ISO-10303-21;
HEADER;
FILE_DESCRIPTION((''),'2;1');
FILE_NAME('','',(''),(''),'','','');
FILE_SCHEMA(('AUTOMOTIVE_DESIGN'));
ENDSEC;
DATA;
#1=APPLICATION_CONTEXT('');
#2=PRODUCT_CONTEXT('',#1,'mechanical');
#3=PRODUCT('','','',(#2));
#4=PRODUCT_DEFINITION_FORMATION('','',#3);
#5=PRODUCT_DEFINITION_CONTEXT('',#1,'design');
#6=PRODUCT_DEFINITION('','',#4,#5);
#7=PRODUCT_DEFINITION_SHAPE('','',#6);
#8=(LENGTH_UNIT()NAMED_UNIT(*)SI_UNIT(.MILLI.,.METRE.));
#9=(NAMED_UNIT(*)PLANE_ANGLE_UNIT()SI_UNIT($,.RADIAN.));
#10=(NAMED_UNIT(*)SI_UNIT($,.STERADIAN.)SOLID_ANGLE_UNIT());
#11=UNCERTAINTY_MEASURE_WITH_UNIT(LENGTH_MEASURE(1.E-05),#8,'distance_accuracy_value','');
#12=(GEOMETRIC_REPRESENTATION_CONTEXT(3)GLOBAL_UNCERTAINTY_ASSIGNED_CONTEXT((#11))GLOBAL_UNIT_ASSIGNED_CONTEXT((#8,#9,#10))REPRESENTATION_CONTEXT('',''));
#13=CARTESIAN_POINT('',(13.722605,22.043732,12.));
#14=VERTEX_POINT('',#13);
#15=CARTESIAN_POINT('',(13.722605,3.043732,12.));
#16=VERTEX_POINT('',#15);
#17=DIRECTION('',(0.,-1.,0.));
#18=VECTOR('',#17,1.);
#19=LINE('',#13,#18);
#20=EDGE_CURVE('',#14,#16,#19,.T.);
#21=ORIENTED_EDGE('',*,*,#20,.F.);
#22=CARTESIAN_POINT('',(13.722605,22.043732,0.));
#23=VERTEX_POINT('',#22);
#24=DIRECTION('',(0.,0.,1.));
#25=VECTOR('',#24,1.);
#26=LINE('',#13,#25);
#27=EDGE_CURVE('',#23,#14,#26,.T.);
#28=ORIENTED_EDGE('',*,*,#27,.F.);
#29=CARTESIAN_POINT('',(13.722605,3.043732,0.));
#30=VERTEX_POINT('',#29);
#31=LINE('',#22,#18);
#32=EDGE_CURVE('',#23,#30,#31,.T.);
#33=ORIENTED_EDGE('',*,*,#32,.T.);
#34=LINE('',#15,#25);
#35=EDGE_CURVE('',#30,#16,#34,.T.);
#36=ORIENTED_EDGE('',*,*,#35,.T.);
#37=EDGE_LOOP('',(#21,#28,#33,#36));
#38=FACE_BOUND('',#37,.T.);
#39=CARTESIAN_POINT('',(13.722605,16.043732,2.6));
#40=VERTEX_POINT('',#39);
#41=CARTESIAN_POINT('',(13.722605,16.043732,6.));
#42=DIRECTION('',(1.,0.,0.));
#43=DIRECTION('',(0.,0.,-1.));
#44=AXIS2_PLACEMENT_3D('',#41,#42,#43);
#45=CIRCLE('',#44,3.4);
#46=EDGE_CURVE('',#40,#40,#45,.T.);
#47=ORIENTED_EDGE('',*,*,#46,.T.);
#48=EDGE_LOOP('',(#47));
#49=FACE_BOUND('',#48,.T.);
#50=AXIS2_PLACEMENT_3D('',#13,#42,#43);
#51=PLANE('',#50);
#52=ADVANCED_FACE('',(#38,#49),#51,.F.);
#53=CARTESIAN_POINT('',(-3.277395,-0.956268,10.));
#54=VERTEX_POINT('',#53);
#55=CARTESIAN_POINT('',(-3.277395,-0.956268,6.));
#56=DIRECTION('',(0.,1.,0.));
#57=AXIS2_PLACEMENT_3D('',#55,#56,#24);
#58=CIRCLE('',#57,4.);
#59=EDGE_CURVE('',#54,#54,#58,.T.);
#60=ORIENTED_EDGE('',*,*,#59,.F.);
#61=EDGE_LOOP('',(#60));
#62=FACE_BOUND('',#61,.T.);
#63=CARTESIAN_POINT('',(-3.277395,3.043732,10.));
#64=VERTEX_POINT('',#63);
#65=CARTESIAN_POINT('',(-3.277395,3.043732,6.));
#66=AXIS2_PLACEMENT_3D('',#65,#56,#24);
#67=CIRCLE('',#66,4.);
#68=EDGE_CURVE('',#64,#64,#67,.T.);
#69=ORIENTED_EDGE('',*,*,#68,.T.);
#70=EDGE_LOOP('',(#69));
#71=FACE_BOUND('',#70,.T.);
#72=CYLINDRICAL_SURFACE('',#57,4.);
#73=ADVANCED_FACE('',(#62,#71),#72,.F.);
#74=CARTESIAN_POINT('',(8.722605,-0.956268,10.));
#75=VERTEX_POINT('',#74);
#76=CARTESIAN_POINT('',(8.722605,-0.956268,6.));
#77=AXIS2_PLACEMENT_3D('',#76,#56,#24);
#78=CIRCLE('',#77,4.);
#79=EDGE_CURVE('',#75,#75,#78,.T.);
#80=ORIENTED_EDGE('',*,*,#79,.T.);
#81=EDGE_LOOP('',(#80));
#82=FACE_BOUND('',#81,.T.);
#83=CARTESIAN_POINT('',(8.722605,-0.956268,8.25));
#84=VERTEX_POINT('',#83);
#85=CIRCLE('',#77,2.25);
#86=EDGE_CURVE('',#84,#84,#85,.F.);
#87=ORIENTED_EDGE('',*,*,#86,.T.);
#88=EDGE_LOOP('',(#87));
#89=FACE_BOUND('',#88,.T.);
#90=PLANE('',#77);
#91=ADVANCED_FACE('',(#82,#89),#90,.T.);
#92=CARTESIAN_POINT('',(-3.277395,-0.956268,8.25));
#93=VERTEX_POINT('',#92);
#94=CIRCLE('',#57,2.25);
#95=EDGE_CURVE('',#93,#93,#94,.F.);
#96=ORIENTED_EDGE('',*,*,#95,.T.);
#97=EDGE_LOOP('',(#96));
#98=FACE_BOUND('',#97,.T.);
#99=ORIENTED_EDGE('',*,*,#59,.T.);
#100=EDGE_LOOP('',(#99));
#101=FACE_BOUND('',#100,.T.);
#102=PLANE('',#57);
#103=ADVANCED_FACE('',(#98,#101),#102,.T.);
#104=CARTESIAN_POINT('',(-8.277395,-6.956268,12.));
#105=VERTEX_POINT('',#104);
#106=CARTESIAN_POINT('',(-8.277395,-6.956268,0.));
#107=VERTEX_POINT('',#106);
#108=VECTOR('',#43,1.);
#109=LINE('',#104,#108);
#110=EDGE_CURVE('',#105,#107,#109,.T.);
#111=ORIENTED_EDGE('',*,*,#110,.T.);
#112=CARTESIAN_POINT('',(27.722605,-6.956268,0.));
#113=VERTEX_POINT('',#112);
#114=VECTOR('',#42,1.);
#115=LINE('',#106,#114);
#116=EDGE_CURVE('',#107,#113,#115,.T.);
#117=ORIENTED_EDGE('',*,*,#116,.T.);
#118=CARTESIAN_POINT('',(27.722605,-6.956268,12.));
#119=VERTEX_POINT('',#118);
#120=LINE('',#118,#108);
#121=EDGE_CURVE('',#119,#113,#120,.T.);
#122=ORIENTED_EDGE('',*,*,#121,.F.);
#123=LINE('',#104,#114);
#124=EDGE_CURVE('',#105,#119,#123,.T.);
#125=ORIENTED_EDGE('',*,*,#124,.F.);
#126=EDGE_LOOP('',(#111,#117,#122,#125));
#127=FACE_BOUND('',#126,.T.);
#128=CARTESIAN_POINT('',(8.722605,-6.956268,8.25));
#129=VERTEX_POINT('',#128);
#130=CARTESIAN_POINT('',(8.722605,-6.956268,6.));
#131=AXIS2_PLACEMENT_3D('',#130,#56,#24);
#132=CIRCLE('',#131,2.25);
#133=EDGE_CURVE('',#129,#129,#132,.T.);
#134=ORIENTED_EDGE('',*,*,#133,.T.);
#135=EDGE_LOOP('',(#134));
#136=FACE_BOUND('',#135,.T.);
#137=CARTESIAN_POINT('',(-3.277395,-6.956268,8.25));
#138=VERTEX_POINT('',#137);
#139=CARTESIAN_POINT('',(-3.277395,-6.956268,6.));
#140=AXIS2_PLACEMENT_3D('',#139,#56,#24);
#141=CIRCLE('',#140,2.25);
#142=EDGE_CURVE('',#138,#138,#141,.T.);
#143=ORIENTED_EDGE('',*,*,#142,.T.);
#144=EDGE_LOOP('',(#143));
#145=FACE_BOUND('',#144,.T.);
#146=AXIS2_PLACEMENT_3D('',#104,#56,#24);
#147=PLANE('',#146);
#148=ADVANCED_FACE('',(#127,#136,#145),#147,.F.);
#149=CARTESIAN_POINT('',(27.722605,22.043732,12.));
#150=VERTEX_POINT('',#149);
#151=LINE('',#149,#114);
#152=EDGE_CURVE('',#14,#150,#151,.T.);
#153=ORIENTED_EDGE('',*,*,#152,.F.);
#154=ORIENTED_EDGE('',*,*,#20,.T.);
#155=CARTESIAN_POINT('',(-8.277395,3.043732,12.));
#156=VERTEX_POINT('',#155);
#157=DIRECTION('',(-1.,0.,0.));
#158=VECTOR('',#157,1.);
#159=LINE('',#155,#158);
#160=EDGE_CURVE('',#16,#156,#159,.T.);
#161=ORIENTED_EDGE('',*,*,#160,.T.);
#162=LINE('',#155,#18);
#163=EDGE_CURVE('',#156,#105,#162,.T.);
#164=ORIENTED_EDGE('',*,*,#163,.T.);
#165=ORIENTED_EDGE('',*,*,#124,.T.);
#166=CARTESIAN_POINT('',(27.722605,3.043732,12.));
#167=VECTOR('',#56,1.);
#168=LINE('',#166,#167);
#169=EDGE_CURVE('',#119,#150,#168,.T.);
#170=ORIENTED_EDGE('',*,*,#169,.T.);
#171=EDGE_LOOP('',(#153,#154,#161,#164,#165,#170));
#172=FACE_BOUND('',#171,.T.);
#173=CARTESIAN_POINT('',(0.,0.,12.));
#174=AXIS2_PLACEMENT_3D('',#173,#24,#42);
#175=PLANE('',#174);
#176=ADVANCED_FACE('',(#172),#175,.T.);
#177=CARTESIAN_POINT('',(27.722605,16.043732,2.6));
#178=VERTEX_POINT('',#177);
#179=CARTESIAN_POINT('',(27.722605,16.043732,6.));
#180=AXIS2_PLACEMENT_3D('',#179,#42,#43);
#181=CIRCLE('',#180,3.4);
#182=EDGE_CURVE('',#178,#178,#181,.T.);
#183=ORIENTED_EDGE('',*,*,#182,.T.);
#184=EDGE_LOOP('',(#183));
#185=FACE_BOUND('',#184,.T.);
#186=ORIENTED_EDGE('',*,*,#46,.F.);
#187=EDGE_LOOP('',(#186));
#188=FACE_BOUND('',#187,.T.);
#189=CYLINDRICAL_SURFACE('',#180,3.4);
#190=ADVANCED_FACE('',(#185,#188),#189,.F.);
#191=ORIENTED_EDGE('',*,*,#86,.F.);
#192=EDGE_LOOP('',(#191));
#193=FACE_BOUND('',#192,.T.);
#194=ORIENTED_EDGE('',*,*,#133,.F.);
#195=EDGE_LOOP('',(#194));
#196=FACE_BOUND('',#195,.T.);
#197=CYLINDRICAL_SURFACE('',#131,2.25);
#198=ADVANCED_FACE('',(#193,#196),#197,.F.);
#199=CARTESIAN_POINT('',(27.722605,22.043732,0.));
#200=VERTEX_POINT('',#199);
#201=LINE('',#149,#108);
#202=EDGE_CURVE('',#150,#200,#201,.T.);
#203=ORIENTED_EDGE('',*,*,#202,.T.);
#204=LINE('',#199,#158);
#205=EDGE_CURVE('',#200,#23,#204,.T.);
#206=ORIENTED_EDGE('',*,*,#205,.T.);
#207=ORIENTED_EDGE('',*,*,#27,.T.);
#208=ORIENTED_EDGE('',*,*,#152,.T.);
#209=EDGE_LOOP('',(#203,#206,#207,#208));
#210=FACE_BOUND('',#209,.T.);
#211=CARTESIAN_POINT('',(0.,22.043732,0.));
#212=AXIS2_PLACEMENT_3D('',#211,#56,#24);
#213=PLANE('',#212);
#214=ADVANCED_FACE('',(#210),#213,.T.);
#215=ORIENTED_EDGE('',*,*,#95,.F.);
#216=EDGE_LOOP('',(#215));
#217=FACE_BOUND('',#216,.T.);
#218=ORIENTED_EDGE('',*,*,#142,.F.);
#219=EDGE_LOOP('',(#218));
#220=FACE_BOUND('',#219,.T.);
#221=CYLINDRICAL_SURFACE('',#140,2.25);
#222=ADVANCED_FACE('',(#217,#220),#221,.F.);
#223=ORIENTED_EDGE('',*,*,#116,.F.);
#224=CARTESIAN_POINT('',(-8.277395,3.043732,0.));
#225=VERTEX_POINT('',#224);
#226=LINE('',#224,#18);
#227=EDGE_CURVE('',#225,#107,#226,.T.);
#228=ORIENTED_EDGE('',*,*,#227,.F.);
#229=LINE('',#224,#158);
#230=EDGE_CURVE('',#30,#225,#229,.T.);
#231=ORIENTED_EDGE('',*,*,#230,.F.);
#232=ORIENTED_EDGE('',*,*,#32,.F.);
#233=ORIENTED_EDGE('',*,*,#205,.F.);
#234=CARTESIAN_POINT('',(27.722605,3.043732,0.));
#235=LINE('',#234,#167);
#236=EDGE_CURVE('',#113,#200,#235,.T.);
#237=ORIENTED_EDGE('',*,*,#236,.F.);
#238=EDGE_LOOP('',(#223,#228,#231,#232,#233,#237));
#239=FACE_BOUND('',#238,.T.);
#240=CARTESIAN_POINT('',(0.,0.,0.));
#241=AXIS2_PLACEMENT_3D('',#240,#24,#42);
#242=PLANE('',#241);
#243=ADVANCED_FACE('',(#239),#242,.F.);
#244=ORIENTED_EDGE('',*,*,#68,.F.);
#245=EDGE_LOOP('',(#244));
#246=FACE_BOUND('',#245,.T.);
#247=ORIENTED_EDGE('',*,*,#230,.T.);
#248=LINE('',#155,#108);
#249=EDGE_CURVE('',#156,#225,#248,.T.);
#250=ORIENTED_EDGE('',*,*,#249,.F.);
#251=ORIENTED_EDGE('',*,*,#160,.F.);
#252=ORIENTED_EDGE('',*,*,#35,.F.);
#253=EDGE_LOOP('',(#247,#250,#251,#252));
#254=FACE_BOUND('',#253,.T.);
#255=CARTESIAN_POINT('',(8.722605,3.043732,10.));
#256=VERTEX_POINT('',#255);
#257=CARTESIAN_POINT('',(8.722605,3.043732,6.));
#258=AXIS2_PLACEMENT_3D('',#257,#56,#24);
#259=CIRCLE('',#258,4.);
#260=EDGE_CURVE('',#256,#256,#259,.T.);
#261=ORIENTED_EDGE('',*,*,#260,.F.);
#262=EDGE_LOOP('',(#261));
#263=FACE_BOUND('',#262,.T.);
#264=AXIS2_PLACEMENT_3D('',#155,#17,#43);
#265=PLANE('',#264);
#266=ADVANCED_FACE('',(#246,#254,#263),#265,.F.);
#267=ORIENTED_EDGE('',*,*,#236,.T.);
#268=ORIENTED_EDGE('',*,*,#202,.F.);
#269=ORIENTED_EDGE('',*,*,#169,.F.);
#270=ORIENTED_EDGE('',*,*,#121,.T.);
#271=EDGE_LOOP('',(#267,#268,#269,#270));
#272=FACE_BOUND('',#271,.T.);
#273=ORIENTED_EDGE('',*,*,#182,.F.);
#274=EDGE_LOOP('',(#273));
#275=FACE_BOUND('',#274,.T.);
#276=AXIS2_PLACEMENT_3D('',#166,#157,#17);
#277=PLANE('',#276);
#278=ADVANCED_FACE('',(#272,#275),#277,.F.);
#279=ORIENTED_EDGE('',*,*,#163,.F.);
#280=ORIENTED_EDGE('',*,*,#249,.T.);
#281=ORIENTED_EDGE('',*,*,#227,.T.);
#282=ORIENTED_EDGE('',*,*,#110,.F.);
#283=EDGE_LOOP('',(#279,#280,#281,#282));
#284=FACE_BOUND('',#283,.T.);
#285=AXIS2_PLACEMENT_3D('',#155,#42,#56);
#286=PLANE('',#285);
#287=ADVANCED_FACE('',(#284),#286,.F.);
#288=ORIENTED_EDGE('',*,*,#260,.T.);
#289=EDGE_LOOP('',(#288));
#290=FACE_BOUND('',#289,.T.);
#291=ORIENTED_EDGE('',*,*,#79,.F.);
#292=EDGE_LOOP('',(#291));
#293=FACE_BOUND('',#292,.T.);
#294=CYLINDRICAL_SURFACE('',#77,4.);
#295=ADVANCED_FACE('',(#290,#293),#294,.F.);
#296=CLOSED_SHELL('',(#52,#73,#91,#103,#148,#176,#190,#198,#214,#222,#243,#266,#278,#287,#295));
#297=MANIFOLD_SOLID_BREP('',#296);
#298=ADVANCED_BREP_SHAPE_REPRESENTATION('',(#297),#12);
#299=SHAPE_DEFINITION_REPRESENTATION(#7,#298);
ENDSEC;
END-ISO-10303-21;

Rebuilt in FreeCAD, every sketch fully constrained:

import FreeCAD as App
import Part
import Sketcher

V = App.Vector
Q = App.Units.Quantity

doc = App.newDocument("Part")
body = doc.addObject("PartDesign::Body", "Body")

sketch1 = doc.addObject("Sketcher::SketchObject", "Sketch")
body.addObject(sketch1)
sketch1.AttachmentSupport = (doc.XY_Plane, [""])
sketch1.MapMode = "FlatFace"
sketch1.addGeometry(Part.LineSegment(V(-8, 3, 0), V(-8, -7, 0)), False)
sketch1.addGeometry(Part.LineSegment(V(-8, -7, 0), V(28, -7, 0)), False)
sketch1.addGeometry(Part.LineSegment(V(28, -7, 0), V(28, 3, 0)), False)
sketch1.addGeometry(Part.LineSegment(V(28, 3, 0), V(-8, 3, 0)), False)
sketch1.addConstraint(Sketcher.Constraint("Coincident", 0, 2, 1, 1))
sketch1.addConstraint(Sketcher.Constraint("Coincident", 1, 2, 2, 1))
sketch1.addConstraint(Sketcher.Constraint("Coincident", 2, 2, 3, 1))
sketch1.addConstraint(Sketcher.Constraint("Coincident", 3, 2, 0, 1))
sketch1.addConstraint(Sketcher.Constraint("Vertical", 0))
sketch1.addConstraint(Sketcher.Constraint("Horizontal", 1))
sketch1.addConstraint(Sketcher.Constraint("Vertical", 2))
sketch1.addConstraint(Sketcher.Constraint("Horizontal", 3))
sketch1.addConstraint(Sketcher.Constraint("DistanceX", 1, 1, 1, 2, Q("36 mm")))
sketch1.addConstraint(Sketcher.Constraint("DistanceY", 0, 2, 0, 1, Q("10 mm")))
sketch1.addConstraint(Sketcher.Constraint("DistanceY", 0, 2, -1, 1, Q("6.956268 mm")))
sketch1.addConstraint(Sketcher.Constraint("DistanceX", 0, 2, -1, 1, Q("8.277395 mm")))
pad1 = doc.addObject("PartDesign::Pad", "Pad")
body.addObject(pad1)
pad1.Profile = sketch1
pad1.Length = 12

sketch2 = doc.addObject("Sketcher::SketchObject", "Sketch001")
body.addObject(sketch2)
sketch2.AttachmentSupport = (doc.XZ_Plane, [""])
sketch2.MapMode = "FlatFace"
sketch2.AttachmentOffset = App.Placement(V(0, 0, -3.043732), App.Rotation())
sketch2.addGeometry(Part.LineSegment(V(14, 0, 0), V(14, 12, 0)), False)
sketch2.addGeometry(Part.LineSegment(V(14, 12, 0), V(28, 12, 0)), False)
sketch2.addGeometry(Part.LineSegment(V(28, 12, 0), V(28, 0, 0)), False)
sketch2.addGeometry(Part.LineSegment(V(28, 0, 0), V(14, 0, 0)), False)
sketch2.addConstraint(Sketcher.Constraint("Coincident", 0, 2, 1, 1))
sketch2.addConstraint(Sketcher.Constraint("Coincident", 1, 2, 2, 1))
sketch2.addConstraint(Sketcher.Constraint("Coincident", 2, 2, 3, 1))
sketch2.addConstraint(Sketcher.Constraint("Coincident", 3, 2, 0, 1))
sketch2.addConstraint(Sketcher.Constraint("Vertical", 0))
sketch2.addConstraint(Sketcher.Constraint("Horizontal", 1))
sketch2.addConstraint(Sketcher.Constraint("Vertical", 2))
sketch2.addConstraint(Sketcher.Constraint("Horizontal", 3))
sketch2.addConstraint(Sketcher.Constraint("PointOnObject", 2, 2, -1))
sketch2.addConstraint(Sketcher.Constraint("DistanceX", 1, 1, 1, 2, Q("14 mm")))
sketch2.addConstraint(Sketcher.Constraint("DistanceY", 0, 1, 0, 2, Q("12 mm")))
sketch2.addConstraint(Sketcher.Constraint("DistanceX", -1, 1, 0, 2, Q("13.722605 mm")))
pad2 = doc.addObject("PartDesign::Pad", "Pad001")
body.addObject(pad2)
pad2.Profile = sketch2
pad2.Length = 19
pad2.Reversed = True

sketch3 = doc.addObject("Sketcher::SketchObject", "Sketch002")
body.addObject(sketch3)
sketch3.AttachmentSupport = (doc.XZ_Plane, [""])
sketch3.MapMode = "FlatFace"
sketch3.AttachmentOffset = App.Placement(V(0, 0, -3.043732), App.Rotation())
sketch3.addGeometry(Part.Circle(V(-3.3, 6, 0), V(0, 0, 1), 2.2), False)
sketch3.addGeometry(Part.Circle(V(8.7, 6, 0), V(0, 0, 1), 2.2), False)
sketch3.addConstraint(Sketcher.Constraint("Equal", 0, 1))
sketch3.addConstraint(Sketcher.Constraint("Horizontal", 0, 3, 1, 3))
sketch3.addConstraint(Sketcher.Constraint("Diameter", 0, Q("4.5 mm")))
sketch3.addConstraint(Sketcher.Constraint("DistanceY", -1, 1, 0, 3, Q("6 mm")))
sketch3.addConstraint(Sketcher.Constraint("DistanceX", 0, 3, 1, 3, Q("12 mm")))
sketch3.addConstraint(Sketcher.Constraint("DistanceX", 0, 3, -1, 1, Q("3.277395 mm")))
pocket1 = doc.addObject("PartDesign::Pocket", "Pocket")
body.addObject(pocket1)
pocket1.Profile = sketch3
pocket1.Type = "ThroughAll"
pocket1.Reversed = True

sketch4 = doc.addObject("Sketcher::SketchObject", "Sketch003")
body.addObject(sketch4)
sketch4.AttachmentSupport = (doc.XZ_Plane, [""])
sketch4.MapMode = "FlatFace"
sketch4.AttachmentOffset = App.Placement(V(0, 0, -3.043732), App.Rotation())
sketch4.addGeometry(Part.Circle(V(-3.3, 6, 0), V(0, 0, 1), 4), False)
sketch4.addGeometry(Part.Circle(V(8.7, 6, 0), V(0, 0, 1), 4), False)
sketch4.addConstraint(Sketcher.Constraint("Equal", 0, 1))
sketch4.addConstraint(Sketcher.Constraint("Horizontal", 0, 3, 1, 3))
sketch4.addConstraint(Sketcher.Constraint("Diameter", 0, Q("8 mm")))
sketch4.addConstraint(Sketcher.Constraint("DistanceY", -1, 1, 0, 3, Q("6 mm")))
sketch4.addConstraint(Sketcher.Constraint("DistanceX", 0, 3, 1, 3, Q("12 mm")))
sketch4.addConstraint(Sketcher.Constraint("DistanceX", 0, 3, -1, 1, Q("3.277395 mm")))
pocket2 = doc.addObject("PartDesign::Pocket", "Pocket001")
body.addObject(pocket2)
pocket2.Profile = sketch4
pocket2.Length = 4
pocket2.Reversed = True

sketch5 = doc.addObject("Sketcher::SketchObject", "Sketch004")
body.addObject(sketch5)
sketch5.AttachmentSupport = (doc.YZ_Plane, [""])
sketch5.MapMode = "FlatFace"
sketch5.AttachmentOffset = App.Placement(V(0, 0, 27.722605), App.Rotation())
sketch5.addGeometry(Part.Circle(V(16, 6, 0), V(0, 0, 1), 3.4), False)
sketch5.addConstraint(Sketcher.Constraint("Diameter", 0, Q("6.8 mm")))
sketch5.addConstraint(Sketcher.Constraint("DistanceY", -1, 1, 0, 3, Q("6 mm")))
sketch5.addConstraint(Sketcher.Constraint("DistanceX", -1, 1, 0, 3, Q("16.043732 mm")))
doc.recompute()
hole = doc.addObject("PartDesign::Hole", "Hole")
body.addObject(hole)
hole.Profile = sketch5
hole.ThreadType = "None"
hole.Diameter = 6.8
hole.DepthType = "Dimension"
hole.Depth = 19.75
hole.DrillPoint = "Angled"
hole.DrillPointAngle = 118

doc.recompute()
